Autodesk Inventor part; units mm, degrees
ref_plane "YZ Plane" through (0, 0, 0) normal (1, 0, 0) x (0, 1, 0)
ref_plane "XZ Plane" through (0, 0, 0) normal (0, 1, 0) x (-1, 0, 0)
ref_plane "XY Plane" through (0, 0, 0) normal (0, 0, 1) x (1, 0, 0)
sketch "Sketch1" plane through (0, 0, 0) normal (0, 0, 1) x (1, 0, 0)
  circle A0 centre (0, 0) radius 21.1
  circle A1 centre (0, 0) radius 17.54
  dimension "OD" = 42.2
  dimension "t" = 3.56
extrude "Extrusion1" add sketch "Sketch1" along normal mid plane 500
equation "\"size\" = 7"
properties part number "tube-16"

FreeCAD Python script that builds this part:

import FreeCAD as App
import Part
import Sketcher
from FreeCAD import Vector

doc = App.newDocument("Part")
body = doc.addObject("PartDesign::Body", "Body")

# Sketch on XY plane
sketch1 = body.newObject("Sketcher::SketchObject", "Sketch")
sketch1.AttachmentSupport = (doc.getObject("XY_Plane"), [""])
sketch1.MapMode = "FlatFace"
sketch1.addGeometry(Part.Circle(Vector(0, 0, 0), Vector(0, 0, 1), 21.1), False)
sketch1.addGeometry(Part.Circle(Vector(0, 0, 0), Vector(0, 0, 1), 17.54), False)
sketch1.addConstraint(Sketcher.Constraint("Coincident", 0, 3, -1, 1))
sketch1.addConstraint(Sketcher.Constraint("Coincident", 1, 3, -1, 1))
sketch1.addConstraint(Sketcher.Constraint("Diameter", 0, 42.2))
sketch1.addConstraint(Sketcher.Constraint("Diameter", 1, 35.08))
pad1 = body.newObject("PartDesign::Pad", "Pad")
pad1.Profile = sketch1
pad1.Length = 500
pad1.Midplane = True

doc.recompute()
